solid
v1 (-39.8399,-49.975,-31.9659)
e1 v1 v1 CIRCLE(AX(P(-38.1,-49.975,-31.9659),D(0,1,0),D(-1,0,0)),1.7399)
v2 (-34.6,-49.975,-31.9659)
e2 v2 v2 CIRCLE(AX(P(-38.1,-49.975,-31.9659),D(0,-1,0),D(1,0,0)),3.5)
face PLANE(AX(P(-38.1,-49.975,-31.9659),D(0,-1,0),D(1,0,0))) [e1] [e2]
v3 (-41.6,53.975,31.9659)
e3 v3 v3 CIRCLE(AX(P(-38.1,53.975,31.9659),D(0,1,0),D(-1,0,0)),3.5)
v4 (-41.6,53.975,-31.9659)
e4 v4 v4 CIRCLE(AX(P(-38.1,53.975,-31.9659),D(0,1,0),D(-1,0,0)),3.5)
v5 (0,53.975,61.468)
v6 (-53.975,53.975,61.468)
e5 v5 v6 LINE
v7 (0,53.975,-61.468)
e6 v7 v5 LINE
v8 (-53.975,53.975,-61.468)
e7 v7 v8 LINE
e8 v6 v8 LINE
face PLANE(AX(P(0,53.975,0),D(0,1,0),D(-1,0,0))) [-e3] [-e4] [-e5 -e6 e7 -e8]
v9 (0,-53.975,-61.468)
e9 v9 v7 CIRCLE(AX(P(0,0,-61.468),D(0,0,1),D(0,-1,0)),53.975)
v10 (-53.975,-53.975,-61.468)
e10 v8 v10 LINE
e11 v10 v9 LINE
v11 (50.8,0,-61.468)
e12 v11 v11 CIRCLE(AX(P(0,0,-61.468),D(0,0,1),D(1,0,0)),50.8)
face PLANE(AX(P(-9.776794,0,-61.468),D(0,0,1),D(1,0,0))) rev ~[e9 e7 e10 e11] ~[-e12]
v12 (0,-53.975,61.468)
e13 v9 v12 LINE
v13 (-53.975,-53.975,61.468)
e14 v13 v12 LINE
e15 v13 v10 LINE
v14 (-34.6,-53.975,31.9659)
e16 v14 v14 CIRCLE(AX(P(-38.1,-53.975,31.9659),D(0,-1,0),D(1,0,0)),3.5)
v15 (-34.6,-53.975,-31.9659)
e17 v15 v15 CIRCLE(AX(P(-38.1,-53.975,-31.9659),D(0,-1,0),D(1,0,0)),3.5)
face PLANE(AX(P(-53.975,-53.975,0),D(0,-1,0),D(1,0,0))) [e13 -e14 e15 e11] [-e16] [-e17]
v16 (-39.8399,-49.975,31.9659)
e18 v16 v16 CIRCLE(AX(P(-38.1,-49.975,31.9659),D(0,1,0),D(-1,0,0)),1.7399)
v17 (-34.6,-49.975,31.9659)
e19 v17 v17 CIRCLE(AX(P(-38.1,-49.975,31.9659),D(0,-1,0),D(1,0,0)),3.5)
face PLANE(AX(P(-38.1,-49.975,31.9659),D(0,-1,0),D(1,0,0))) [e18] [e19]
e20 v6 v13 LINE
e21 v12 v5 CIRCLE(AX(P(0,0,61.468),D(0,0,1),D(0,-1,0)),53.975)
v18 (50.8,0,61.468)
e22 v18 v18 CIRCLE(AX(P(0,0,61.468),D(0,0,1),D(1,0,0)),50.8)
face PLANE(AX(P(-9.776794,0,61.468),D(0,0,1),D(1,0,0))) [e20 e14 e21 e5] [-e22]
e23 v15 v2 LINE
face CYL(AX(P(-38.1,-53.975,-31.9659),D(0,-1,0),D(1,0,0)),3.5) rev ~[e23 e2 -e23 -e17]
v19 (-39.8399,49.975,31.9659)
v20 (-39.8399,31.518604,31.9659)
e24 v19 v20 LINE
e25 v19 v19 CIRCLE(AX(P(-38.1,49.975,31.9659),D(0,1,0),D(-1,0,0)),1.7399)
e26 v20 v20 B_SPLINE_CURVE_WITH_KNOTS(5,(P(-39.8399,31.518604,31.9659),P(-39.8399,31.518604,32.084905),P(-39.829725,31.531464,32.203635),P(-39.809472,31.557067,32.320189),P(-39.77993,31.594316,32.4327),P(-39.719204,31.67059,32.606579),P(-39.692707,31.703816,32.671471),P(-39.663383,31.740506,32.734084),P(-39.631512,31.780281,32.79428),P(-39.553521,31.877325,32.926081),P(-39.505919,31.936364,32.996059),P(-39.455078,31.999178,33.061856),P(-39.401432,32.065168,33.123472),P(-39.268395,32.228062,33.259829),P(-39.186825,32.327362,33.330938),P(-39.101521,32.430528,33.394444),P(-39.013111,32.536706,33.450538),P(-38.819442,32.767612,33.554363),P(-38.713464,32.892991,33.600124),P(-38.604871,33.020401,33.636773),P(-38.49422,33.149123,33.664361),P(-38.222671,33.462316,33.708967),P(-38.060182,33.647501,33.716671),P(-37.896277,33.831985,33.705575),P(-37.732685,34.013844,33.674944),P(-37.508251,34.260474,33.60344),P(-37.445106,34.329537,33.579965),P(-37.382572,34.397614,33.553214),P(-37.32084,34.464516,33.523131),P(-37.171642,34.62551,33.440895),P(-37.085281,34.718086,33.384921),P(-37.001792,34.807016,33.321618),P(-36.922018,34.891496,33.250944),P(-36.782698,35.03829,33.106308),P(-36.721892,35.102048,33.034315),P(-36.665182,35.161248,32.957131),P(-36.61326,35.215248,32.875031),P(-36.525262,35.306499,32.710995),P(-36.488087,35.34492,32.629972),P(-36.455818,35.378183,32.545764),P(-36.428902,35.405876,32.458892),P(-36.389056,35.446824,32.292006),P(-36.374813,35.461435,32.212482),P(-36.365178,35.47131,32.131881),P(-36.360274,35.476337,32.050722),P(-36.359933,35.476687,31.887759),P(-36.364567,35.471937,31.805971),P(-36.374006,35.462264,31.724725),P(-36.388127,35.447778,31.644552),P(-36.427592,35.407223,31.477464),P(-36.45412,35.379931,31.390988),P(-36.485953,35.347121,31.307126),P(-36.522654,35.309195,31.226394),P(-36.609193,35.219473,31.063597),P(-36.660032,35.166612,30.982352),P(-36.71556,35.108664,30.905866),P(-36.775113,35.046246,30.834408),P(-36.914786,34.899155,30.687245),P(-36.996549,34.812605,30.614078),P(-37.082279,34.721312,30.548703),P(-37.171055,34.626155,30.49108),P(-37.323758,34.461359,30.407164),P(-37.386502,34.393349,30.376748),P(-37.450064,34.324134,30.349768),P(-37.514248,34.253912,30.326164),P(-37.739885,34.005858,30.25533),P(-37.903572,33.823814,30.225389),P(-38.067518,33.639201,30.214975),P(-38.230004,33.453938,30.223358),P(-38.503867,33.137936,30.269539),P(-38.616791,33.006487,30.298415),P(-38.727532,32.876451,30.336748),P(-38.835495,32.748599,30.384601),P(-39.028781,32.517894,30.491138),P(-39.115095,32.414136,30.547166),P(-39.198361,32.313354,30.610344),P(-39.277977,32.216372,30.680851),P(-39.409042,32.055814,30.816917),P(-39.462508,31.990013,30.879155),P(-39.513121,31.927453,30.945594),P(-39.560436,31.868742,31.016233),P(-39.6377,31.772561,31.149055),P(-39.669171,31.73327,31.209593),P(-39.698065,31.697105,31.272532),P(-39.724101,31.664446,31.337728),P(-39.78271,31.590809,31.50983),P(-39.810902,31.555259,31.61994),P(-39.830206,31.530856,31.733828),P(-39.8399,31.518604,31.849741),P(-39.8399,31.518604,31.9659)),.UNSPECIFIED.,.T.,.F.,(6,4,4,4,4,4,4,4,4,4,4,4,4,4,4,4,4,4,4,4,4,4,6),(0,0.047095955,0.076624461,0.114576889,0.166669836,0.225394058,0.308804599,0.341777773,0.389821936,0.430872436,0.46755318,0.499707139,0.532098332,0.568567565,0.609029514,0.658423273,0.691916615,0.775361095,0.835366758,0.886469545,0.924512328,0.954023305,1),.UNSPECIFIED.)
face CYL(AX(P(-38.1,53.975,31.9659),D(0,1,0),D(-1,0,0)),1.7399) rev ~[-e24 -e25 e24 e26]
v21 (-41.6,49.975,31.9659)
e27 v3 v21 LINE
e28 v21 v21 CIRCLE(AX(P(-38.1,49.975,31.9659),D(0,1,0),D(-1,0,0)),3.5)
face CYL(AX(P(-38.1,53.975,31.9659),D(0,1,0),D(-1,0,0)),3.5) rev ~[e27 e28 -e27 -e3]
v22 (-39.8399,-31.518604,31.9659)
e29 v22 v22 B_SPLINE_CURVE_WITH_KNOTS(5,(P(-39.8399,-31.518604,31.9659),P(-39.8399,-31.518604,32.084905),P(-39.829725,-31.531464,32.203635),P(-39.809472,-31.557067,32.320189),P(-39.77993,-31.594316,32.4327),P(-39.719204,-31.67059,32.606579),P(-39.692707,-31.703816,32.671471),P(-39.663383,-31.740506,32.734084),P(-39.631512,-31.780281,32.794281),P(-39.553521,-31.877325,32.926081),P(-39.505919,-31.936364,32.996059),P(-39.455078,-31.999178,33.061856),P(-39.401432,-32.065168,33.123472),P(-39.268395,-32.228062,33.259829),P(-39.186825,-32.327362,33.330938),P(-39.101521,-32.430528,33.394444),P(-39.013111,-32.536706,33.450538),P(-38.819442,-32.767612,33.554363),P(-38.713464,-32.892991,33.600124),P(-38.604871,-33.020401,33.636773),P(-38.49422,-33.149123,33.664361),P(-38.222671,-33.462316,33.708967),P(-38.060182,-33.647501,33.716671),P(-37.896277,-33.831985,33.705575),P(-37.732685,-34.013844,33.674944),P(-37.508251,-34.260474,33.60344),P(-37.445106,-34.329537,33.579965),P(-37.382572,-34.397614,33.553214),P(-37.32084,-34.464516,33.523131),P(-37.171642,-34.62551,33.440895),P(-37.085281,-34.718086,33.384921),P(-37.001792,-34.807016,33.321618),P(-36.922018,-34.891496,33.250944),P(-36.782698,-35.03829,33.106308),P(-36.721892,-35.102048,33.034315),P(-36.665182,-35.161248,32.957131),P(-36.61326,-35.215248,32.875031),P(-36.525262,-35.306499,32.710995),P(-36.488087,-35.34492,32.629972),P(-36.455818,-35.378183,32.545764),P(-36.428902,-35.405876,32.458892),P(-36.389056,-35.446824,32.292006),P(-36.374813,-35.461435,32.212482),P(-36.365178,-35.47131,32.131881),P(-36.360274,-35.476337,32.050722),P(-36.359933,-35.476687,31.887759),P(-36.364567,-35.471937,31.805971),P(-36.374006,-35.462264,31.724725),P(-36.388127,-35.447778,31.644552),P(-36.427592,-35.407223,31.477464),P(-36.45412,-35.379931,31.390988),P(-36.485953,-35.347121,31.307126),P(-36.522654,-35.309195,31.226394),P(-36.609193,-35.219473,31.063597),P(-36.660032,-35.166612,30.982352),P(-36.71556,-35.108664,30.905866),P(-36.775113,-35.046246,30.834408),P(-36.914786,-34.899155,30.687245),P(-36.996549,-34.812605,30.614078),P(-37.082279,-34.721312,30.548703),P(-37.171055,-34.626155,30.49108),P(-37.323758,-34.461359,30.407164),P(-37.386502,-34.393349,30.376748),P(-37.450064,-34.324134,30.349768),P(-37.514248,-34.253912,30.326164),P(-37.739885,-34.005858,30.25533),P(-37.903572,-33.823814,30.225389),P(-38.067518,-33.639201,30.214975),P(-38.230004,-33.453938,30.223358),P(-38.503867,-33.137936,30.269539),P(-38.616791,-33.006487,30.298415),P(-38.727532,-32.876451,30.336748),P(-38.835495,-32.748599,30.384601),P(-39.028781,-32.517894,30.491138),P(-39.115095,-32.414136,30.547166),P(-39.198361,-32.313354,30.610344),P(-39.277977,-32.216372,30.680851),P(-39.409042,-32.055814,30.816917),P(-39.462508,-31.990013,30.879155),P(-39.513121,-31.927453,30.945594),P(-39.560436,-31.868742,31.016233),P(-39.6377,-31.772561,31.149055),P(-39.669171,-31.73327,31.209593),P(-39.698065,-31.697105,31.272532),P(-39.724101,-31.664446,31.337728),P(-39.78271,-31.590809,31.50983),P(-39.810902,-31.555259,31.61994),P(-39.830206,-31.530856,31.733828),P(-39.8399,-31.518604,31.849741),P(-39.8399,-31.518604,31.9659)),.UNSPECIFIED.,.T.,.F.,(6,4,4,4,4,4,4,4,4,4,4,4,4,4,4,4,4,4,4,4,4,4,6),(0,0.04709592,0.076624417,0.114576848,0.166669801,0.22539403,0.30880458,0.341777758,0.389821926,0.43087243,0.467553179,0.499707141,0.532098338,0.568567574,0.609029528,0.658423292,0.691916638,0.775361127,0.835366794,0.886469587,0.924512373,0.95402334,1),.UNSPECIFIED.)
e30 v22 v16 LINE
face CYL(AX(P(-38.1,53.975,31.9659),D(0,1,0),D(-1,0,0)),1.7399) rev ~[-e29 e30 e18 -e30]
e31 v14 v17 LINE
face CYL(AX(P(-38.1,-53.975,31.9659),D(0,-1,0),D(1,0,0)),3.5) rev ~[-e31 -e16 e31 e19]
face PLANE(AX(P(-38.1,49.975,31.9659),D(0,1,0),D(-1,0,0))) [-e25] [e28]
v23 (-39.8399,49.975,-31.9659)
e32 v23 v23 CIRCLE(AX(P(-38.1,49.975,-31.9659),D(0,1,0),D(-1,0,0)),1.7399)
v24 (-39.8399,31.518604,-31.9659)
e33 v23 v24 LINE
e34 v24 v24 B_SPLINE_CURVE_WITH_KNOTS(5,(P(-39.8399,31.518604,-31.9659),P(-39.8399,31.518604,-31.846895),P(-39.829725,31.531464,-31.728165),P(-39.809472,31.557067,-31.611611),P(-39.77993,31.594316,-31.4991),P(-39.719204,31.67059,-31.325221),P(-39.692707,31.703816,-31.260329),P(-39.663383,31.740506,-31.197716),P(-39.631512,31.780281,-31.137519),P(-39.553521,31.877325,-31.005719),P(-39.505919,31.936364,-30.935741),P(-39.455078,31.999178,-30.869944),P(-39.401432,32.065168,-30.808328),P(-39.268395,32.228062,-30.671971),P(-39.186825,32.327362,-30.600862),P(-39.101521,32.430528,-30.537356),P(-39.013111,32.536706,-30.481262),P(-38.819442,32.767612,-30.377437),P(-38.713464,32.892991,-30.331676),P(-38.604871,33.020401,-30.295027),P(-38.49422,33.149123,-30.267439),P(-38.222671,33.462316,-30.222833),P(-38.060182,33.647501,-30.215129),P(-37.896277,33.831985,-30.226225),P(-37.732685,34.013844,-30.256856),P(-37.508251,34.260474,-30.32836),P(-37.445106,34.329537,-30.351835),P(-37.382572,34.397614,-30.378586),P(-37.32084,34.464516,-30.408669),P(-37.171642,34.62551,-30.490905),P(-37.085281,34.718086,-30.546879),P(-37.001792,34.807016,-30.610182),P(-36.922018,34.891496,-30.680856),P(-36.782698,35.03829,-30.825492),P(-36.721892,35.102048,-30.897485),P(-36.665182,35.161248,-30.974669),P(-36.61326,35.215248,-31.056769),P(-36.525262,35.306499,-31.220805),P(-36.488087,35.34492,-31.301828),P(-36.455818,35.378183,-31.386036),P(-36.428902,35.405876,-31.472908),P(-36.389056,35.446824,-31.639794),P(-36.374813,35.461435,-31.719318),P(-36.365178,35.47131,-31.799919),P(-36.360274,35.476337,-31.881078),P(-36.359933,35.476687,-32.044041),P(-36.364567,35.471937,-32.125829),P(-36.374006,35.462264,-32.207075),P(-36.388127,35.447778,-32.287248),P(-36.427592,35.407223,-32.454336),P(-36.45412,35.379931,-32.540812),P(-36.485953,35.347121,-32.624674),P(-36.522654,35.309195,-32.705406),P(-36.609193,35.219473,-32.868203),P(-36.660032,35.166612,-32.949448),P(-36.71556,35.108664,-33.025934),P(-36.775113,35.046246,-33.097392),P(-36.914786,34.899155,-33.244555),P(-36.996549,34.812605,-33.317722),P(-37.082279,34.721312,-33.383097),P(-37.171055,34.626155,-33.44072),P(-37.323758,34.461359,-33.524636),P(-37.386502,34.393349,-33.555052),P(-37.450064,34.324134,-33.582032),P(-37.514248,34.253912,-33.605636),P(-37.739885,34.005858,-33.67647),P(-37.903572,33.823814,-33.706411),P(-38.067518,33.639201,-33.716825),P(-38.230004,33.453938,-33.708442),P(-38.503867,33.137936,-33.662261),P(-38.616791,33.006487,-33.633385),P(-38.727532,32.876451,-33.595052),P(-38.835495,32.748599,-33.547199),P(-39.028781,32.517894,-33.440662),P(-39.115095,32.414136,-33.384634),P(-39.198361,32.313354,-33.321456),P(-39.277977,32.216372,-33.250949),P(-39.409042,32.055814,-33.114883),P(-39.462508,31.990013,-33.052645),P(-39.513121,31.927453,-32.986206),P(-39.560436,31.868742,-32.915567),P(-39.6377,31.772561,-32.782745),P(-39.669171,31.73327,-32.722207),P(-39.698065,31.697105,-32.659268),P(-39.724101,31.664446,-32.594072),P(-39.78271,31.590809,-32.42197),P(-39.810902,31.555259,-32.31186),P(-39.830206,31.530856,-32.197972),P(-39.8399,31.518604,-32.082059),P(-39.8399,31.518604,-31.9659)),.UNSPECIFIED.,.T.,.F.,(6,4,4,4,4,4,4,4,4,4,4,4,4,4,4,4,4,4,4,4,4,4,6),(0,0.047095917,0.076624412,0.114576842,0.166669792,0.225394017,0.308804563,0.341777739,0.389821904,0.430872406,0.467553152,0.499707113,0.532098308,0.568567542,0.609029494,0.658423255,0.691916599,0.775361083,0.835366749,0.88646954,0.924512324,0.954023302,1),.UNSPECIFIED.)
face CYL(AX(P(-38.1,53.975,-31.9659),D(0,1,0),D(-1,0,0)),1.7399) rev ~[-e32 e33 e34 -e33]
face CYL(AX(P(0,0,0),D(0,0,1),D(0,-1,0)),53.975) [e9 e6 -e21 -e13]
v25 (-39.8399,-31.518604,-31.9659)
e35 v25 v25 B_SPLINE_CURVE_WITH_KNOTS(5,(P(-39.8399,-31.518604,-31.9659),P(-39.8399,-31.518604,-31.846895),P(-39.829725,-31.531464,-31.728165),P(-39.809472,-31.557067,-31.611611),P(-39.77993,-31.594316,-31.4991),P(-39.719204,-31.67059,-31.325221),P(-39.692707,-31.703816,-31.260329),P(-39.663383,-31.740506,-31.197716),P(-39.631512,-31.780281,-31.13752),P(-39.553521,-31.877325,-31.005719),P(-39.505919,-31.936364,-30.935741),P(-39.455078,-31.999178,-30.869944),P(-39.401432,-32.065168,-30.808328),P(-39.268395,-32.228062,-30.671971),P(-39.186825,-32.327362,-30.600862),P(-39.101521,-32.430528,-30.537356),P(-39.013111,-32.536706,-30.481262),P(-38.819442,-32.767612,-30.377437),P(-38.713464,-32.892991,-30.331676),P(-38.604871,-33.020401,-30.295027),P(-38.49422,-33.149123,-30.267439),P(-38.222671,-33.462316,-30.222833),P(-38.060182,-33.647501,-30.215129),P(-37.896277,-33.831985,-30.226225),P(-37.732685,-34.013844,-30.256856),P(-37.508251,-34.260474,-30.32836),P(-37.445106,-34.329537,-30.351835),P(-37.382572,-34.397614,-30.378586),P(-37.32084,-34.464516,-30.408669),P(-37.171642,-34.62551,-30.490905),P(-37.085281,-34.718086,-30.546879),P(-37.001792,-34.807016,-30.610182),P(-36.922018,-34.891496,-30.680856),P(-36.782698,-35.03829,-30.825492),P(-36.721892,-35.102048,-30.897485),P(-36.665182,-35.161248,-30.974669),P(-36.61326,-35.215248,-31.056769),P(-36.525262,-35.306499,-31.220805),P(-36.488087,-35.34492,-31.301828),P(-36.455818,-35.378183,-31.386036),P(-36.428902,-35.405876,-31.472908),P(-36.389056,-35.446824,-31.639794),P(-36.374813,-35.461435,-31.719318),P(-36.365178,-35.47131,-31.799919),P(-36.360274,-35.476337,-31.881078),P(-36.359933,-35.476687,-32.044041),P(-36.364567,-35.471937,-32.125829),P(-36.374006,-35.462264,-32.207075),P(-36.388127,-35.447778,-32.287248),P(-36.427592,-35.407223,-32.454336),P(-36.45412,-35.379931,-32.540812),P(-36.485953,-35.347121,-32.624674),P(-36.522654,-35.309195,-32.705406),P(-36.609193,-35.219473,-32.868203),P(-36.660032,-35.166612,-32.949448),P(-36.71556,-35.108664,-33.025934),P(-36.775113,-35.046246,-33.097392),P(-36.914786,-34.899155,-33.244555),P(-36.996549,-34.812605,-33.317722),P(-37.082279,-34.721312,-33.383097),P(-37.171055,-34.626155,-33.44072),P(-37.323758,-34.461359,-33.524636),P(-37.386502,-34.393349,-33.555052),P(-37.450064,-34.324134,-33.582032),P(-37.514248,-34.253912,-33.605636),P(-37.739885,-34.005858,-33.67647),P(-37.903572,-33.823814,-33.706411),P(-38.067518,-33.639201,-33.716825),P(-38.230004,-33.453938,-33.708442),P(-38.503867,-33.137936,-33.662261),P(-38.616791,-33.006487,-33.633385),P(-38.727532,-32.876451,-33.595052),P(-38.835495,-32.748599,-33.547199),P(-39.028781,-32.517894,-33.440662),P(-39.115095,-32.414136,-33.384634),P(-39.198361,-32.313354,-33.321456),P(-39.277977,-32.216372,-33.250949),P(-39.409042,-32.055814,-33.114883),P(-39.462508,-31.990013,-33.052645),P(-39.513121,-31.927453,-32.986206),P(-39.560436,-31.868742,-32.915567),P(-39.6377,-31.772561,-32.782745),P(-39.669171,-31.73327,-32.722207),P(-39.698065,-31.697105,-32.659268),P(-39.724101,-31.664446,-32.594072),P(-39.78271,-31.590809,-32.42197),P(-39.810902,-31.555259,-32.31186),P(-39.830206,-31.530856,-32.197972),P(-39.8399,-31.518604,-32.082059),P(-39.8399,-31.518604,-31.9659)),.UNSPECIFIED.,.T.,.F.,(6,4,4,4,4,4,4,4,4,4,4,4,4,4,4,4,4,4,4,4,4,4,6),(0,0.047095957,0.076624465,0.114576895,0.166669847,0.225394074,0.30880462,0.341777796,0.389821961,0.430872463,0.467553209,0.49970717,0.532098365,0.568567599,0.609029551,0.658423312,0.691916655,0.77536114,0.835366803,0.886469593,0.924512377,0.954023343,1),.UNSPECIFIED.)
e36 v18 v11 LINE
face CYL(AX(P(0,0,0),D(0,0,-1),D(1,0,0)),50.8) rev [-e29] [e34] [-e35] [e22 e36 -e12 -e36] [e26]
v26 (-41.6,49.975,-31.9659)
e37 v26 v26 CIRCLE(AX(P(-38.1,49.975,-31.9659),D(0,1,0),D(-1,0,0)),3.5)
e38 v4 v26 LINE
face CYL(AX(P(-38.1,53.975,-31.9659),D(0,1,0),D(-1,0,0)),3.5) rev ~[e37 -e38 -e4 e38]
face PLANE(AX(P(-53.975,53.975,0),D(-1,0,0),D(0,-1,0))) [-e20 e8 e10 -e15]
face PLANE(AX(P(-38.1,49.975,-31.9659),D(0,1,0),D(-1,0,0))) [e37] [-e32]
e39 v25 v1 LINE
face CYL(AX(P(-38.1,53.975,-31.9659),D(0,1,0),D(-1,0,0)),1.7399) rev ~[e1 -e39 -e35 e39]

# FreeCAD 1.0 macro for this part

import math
import FreeCAD as App
import Part
import Sketcher

V = App.Vector
Q = App.Units.Quantity

doc = App.newDocument("Part")
body = doc.addObject("PartDesign::Body", "Body")

# Sketch on XY plane
sketch1 = body.newObject("Sketcher::SketchObject", "Sketch")
sketch1.AttachmentSupport = (doc.getObject("XY_Plane"), [""])
sketch1.MapMode = "FlatFace"
sketch1.addGeometry(Part.LineSegment(V(-54, -54, 0), V(0, -54, 0)), False)
sketch1.addGeometry(Part.ArcOfCircle(Part.Circle(V(0, 0, 0), V(0, 0, 1), 54), math.radians(-90), math.radians(90)), False)
sketch1.addGeometry(Part.LineSegment(V(0, 54, 0), V(-54, 54, 0)), False)
sketch1.addGeometry(Part.LineSegment(V(-54, 54, 0), V(-54, -54, 0)), False)
sketch1.addGeometry(Part.Circle(V(0, 0, 0), V(0, 0, 1), 51), False)
sketch1.addConstraint(Sketcher.Constraint("Tangent", 0, 2, 1, 1))
sketch1.addConstraint(Sketcher.Constraint("Tangent", 1, 2, 2, 1))
sketch1.addConstraint(Sketcher.Constraint("Coincident", 2, 2, 3, 1))
sketch1.addConstraint(Sketcher.Constraint("Coincident", 3, 2, 0, 1))
sketch1.addConstraint(Sketcher.Constraint("Horizontal", 0))
sketch1.addConstraint(Sketcher.Constraint("Horizontal", 2))
sketch1.addConstraint(Sketcher.Constraint("Vertical", 3))
sketch1.addConstraint(Sketcher.Constraint("Coincident", 1, 3, -1, 1))
sketch1.addConstraint(Sketcher.Constraint("Coincident", 4, 3, -1, 1))
sketch1.addConstraint(Sketcher.Constraint("Diameter", 4, Q("4 in")))
sketch1.addConstraint(Sketcher.Constraint("Radius", 1, Q("2.125 in")))
sketch1.addConstraint(Sketcher.Constraint("DistanceX", 0, 1, 0, 2, Q("2.125 in")))
pad1 = body.newObject("PartDesign::Pad", "Pad")
pad1.Profile = sketch1
pad1.Length = Q("4.84 in")
pad1.Midplane = True

# Sketch on XZ plane
sketch2 = body.newObject("Sketcher::SketchObject", "Sketch001")
sketch2.AttachmentSupport = (doc.getObject("XZ_Plane"), [""])
sketch2.MapMode = "FlatFace"
sketch2.AttachmentOffset = App.Placement(V(0, 0, -2.125 * 25.4), App.Rotation())
sketch2.addGeometry(Part.Circle(V(-38.1, 32, 0), V(0, 0, 1), 1.7), False)
sketch2.addGeometry(Part.Circle(V(-38.1, -32, 0), V(0, 0, 1), 1.7), False)
sketch2.addConstraint(Sketcher.Constraint("Equal", 0, 1))
sketch2.addConstraint(Sketcher.Constraint("Symmetric", 0, 3, 1, 3, -1))
sketch2.addConstraint(Sketcher.Constraint("Diameter", 0, Q("0.137 in")))
sketch2.addConstraint(Sketcher.Constraint("DistanceX", 0, 3, -1, 1, Q("1.5 in")))
sketch2.addConstraint(Sketcher.Constraint("DistanceY", 1, 3, 0, 3, Q("2.517 in")))
pocket1 = body.newObject("PartDesign::Pocket", "Pocket")
pocket1.Profile = sketch2
pocket1.Length = Q("12 in")
pocket1.Reversed = True

# Sketch on XZ plane
sketch3 = body.newObject("Sketcher::SketchObject", "Sketch002")
sketch3.AttachmentSupport = (doc.getObject("XZ_Plane"), [""])
sketch3.MapMode = "FlatFace"
sketch3.AttachmentOffset = App.Placement(V(0, 0, 2.125 * 25.4), App.Rotation())
sketch3.addGeometry(Part.Circle(V(-38.1, 32, 0), V(0, 0, 1), 3.5), False)
sketch3.addGeometry(Part.Circle(V(-38.1, -32, 0), V(0, 0, 1), 3.5), False)
sketch3.addConstraint(Sketcher.Constraint("Equal", 0, 1))
sketch3.addConstraint(Sketcher.Constraint("Symmetric", 0, 3, 1, 3, -1))
sketch3.addConstraint(Sketcher.Constraint("DistanceX", 0, 3, -1, 1, Q("1.5 in")))
sketch3.addConstraint(Sketcher.Constraint("Diameter", 0, 7.0))
sketch3.addConstraint(Sketcher.Constraint("DistanceY", 1, 3, 0, 3, Q("2.517 in")))
pocket2 = body.newObject("PartDesign::Pocket", "Pocket001")
pocket2.Profile = sketch3
pocket2.Length = 4

# Sketch on XZ plane
sketch4 = body.newObject("Sketcher::SketchObject", "Sketch003")
sketch4.AttachmentSupport = (doc.getObject("XZ_Plane"), [""])
sketch4.MapMode = "FlatFace"
sketch4.AttachmentOffset = App.Placement(V(0, 0, -2.125 * 25.4), App.Rotation())
sketch4.addGeometry(Part.Circle(V(-38.1, 32, 0), V(0, 0, 1), 3.5), False)
sketch4.addGeometry(Part.Circle(V(-38.1, -32, 0), V(0, 0, 1), 3.5), False)
sketch4.addConstraint(Sketcher.Constraint("Equal", 0, 1))
sketch4.addConstraint(Sketcher.Constraint("Symmetric", 0, 3, 1, 3, -1))
sketch4.addConstraint(Sketcher.Constraint("DistanceX", 0, 3, -1, 1, Q("1.5 in")))
sketch4.addConstraint(Sketcher.Constraint("Diameter", 0, 7.0))
sketch4.addConstraint(Sketcher.Constraint("DistanceY", 1, 3, 0, 3, Q("2.517 in")))
pocket3 = body.newObject("PartDesign::Pocket", "Pocket002")
pocket3.Profile = sketch4
pocket3.Length = 4
pocket3.Reversed = True

doc.recompute()
